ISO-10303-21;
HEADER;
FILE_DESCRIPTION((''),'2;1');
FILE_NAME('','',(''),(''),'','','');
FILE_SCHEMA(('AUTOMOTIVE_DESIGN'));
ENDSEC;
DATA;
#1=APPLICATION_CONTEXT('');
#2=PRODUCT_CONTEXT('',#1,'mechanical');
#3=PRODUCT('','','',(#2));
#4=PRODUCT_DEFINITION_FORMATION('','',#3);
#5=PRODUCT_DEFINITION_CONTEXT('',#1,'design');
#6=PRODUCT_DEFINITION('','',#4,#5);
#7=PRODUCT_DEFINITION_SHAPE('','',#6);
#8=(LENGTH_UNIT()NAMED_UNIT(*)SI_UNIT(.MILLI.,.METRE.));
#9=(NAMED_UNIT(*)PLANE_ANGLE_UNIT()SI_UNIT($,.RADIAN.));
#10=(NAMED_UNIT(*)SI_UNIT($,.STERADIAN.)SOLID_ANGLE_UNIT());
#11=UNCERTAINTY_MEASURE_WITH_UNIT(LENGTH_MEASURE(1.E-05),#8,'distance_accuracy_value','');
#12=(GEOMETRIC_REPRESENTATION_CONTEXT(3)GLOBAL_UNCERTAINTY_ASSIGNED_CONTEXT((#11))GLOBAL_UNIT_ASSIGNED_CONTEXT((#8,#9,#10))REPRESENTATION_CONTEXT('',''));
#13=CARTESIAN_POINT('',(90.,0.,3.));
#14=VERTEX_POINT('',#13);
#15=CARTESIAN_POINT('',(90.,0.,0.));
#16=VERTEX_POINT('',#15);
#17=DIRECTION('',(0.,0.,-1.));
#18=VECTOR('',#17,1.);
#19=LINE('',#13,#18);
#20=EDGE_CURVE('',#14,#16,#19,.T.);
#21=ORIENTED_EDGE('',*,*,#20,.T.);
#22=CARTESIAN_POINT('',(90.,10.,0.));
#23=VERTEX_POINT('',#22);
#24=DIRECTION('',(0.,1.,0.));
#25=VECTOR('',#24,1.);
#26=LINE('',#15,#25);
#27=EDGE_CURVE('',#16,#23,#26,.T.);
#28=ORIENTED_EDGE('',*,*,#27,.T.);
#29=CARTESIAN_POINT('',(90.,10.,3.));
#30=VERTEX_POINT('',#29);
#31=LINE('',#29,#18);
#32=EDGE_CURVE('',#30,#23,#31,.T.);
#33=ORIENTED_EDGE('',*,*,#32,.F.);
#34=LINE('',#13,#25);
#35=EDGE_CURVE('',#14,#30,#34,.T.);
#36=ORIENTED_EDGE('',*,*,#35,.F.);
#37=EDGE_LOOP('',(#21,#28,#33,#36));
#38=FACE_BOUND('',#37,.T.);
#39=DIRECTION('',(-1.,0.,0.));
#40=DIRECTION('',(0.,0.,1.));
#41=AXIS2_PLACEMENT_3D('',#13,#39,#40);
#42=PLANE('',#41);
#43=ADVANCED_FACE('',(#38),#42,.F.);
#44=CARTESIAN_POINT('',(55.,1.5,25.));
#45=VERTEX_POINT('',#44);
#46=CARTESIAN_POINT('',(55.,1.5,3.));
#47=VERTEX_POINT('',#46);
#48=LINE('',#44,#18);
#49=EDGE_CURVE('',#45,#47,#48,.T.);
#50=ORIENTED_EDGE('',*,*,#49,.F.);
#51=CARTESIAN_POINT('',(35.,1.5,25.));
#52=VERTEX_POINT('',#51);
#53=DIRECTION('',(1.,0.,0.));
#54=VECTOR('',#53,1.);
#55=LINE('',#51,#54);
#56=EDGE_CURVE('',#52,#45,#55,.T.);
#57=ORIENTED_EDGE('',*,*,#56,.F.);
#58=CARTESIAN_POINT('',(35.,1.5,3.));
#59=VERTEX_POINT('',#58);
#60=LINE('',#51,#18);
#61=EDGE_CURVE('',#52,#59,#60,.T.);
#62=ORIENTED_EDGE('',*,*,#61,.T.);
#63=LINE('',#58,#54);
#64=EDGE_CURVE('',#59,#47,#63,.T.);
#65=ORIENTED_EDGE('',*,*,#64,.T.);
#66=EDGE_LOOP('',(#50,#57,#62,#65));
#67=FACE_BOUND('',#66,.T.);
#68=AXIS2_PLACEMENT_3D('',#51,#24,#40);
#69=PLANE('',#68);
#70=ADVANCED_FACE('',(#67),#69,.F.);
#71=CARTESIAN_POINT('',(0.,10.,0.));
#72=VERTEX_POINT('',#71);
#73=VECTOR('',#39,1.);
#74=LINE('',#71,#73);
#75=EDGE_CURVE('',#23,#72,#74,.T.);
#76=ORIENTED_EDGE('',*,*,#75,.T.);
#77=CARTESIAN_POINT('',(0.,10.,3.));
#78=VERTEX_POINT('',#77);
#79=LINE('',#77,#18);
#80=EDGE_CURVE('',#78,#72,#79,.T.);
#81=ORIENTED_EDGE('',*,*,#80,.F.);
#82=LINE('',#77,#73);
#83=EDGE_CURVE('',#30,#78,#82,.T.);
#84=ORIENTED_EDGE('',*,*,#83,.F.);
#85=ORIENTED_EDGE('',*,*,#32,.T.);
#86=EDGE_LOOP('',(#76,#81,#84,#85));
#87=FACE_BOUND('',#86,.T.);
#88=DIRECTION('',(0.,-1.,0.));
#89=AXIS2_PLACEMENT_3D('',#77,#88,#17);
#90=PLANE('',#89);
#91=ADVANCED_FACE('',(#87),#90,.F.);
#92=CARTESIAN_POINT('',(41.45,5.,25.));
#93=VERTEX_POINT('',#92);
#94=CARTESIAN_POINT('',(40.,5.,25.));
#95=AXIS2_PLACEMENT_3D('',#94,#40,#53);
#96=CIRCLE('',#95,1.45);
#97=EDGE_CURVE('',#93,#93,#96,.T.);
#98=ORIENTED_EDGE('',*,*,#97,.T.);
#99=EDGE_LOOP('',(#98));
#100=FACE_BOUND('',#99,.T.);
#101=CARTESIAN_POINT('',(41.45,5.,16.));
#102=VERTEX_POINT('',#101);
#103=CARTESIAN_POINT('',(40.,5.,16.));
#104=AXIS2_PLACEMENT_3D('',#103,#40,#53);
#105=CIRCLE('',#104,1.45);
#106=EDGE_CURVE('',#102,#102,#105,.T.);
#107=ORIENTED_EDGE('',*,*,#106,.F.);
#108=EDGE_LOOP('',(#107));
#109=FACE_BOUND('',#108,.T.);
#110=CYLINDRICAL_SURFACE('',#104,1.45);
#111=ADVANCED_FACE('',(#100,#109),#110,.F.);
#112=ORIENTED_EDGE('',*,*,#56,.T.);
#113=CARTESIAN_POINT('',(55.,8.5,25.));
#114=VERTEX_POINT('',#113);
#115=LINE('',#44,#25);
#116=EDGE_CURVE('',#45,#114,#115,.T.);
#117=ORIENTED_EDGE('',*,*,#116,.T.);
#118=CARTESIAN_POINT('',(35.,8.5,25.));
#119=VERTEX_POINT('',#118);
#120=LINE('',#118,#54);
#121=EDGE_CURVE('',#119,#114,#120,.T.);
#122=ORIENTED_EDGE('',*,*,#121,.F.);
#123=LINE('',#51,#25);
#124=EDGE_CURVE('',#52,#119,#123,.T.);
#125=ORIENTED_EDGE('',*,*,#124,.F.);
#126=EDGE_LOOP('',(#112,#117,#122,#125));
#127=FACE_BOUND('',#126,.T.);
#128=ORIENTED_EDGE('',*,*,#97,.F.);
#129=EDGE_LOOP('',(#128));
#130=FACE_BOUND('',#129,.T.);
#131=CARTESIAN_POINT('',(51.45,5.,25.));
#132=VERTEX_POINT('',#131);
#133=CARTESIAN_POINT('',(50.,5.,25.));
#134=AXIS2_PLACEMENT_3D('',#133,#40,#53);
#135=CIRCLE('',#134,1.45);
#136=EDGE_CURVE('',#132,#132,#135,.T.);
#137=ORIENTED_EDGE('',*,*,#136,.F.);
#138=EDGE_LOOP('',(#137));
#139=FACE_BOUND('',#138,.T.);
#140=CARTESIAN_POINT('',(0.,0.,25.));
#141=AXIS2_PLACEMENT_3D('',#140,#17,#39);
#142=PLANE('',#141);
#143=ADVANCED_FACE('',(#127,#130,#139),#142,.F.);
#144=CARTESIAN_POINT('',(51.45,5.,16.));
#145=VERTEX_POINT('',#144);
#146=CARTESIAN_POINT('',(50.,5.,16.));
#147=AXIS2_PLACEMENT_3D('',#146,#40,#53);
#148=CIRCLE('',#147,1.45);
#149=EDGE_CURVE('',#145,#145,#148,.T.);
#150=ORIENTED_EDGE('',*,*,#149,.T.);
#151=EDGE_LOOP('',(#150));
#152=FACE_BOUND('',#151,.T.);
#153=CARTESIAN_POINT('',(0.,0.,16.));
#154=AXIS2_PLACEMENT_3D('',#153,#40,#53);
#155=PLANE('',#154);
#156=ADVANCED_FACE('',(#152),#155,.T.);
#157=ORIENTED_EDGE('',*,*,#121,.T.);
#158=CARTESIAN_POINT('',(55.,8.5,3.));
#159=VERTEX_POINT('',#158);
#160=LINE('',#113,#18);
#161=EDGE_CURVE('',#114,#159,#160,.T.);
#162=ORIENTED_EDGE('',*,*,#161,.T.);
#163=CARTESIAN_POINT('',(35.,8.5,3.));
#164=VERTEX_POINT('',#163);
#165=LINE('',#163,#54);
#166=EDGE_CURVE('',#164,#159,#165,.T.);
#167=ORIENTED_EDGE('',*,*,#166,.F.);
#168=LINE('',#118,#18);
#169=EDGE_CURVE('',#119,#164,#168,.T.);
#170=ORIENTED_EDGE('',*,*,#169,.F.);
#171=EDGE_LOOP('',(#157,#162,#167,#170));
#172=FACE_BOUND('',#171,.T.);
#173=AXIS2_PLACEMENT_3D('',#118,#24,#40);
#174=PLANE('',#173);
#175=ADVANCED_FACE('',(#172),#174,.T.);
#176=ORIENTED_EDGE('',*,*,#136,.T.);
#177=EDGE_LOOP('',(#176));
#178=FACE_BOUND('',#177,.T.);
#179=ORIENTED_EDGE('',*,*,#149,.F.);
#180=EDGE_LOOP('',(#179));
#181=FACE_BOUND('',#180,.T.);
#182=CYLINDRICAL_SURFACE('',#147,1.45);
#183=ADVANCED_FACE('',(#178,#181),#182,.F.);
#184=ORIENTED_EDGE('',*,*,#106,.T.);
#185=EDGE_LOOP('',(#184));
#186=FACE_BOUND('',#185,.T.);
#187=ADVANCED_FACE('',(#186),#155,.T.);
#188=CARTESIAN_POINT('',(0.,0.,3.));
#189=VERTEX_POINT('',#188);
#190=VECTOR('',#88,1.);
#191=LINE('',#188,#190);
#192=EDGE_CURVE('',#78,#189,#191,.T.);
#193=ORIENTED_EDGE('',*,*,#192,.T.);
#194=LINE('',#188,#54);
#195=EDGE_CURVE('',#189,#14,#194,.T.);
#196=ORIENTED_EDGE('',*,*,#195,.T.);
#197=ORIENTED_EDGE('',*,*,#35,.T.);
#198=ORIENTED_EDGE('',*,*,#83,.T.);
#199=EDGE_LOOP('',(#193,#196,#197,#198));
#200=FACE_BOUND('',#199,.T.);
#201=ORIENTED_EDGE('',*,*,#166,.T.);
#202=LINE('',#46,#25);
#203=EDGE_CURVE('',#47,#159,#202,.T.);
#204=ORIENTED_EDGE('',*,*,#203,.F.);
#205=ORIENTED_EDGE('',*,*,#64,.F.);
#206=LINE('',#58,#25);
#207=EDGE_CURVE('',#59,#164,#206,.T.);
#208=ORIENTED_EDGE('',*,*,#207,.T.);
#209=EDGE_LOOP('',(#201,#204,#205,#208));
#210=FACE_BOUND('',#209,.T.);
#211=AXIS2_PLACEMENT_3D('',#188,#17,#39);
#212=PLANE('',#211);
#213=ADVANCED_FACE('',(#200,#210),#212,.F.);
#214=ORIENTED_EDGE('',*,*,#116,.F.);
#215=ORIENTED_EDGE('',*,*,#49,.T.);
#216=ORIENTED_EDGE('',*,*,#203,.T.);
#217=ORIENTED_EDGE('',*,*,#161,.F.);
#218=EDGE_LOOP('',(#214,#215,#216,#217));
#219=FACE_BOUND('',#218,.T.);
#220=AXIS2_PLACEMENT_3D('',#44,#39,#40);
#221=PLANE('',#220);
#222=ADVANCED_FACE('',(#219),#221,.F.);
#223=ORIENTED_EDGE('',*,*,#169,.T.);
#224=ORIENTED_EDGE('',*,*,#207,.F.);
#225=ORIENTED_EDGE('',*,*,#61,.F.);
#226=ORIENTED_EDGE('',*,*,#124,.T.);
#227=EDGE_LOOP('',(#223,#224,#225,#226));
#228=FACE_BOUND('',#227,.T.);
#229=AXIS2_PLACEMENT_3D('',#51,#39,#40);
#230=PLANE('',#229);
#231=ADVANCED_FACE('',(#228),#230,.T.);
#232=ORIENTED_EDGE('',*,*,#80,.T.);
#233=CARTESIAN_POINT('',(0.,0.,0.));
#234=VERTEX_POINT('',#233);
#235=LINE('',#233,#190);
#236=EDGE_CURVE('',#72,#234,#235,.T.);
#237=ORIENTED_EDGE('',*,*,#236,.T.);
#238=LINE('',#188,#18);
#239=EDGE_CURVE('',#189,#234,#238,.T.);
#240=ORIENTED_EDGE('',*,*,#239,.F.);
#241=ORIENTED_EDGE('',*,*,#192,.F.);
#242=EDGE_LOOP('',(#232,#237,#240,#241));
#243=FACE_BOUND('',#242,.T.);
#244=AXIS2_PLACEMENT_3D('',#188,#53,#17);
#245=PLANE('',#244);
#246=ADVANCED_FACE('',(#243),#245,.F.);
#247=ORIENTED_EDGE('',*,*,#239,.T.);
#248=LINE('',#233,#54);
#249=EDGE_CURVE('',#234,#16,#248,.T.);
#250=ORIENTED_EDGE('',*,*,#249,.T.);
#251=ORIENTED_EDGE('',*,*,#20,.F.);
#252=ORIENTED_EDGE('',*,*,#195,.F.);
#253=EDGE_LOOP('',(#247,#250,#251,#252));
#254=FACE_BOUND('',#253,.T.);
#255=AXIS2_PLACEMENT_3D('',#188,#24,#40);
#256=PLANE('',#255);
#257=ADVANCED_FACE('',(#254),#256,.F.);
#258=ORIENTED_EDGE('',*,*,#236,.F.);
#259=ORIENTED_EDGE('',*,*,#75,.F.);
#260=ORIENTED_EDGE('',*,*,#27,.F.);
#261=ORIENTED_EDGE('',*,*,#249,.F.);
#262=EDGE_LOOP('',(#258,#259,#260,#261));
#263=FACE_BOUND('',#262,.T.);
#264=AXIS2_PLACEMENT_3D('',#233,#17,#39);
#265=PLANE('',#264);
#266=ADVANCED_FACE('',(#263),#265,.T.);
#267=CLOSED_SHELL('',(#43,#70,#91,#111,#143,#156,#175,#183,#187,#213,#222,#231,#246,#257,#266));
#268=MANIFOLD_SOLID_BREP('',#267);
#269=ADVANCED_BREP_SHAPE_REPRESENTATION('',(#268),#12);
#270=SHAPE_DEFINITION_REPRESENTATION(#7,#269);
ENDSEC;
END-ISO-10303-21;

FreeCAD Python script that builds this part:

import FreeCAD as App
import Part
import Sketcher


def add_polygon(sketch, points):
    """Adds a closed chain of lines whose ends are joined by coincident constraints."""
    first, n = sketch.GeometryCount, len(points)
    for a, b in zip(points, points[1:] + points[:1]):
        sketch.addGeometry(Part.LineSegment(App.Vector(*a, 0), App.Vector(*b, 0)), False)
    for i in range(n):
        sketch.addConstraint(Sketcher.Constraint("Coincident", first + i, 2, first + (i + 1) % n, 1))

doc = App.newDocument("Part")
body = doc.addObject("PartDesign::Body", "Body")

sketch1 = doc.addObject("Sketcher::SketchObject", "Sketch")
body.addObject(sketch1)
sketch1.AttachmentSupport = (doc.XY_Plane, [""])
sketch1.MapMode = "FlatFace"
add_polygon(sketch1, [(0, 10), (0, 0), (90, 0), (90, 10)])
sketch1.addConstraint([
    Sketcher.Constraint("Vertical", 0),
    Sketcher.Constraint("Horizontal", 1),
    Sketcher.Constraint("Vertical", 2),
    Sketcher.Constraint("Horizontal", 3),
    Sketcher.Constraint("Coincident", 0, 2, -1, 1),
    Sketcher.Constraint("DistanceX", 1, 1, 1, 2, 90.0),
    Sketcher.Constraint("DistanceY", 0, 2, 0, 1, 10.0),
])
pad1 = doc.addObject("PartDesign::Pad", "Pad")
body.addObject(pad1)
pad1.Profile = sketch1
pad1.Length = 3

sketch2 = doc.addObject("Sketcher::SketchObject", "Sketch001")
body.addObject(sketch2)
sketch2.AttachmentSupport = (doc.XY_Plane, [""])
sketch2.MapMode = "FlatFace"
sketch2.AttachmentOffset = App.Placement(App.Vector(0, 0, 3), App.Rotation())
add_polygon(sketch2, [(35, 8), (35, 2), (55, 2), (55, 8)])
sketch2.addConstraint([
    Sketcher.Constraint("Vertical", 0),
    Sketcher.Constraint("Horizontal", 1),
    Sketcher.Constraint("Vertical", 2),
    Sketcher.Constraint("Horizontal", 3),
    Sketcher.Constraint("DistanceX", 1, 1, 1, 2, 20.0),
    Sketcher.Constraint("DistanceY", 0, 2, 0, 1, 7.0),
    Sketcher.Constraint("DistanceX", -1, 1, 0, 2, 35.0),
    Sketcher.Constraint("DistanceY", -1, 1, 0, 2, 1.5),
])
pad2 = doc.addObject("PartDesign::Pad", "Pad001")
body.addObject(pad2)
pad2.Profile = sketch2
pad2.Length = 22

sketch3 = doc.addObject("Sketcher::SketchObject", "Sketch002")
body.addObject(sketch3)
sketch3.AttachmentSupport = (doc.XY_Plane, [""])
sketch3.MapMode = "FlatFace"
sketch3.AttachmentOffset = App.Placement(App.Vector(0, 0, 25), App.Rotation())
sketch3.addGeometry([
    Part.Circle(App.Vector(50, 5, 0), App.Vector(0, 0, 1), 1.4),
    Part.Circle(App.Vector(40, 5, 0), App.Vector(0, 0, 1), 1.4),
], False)
sketch3.addConstraint([
    Sketcher.Constraint("Equal", 0, 1),
    Sketcher.Constraint("Horizontal", 0, 3, 1, 3),
    Sketcher.Constraint("Diameter", 0, 2.9),
    Sketcher.Constraint("DistanceX", -1, 1, 0, 3, 50.0),
    Sketcher.Constraint("DistanceY", -1, 1, 0, 3, 5.0),
    Sketcher.Constraint("DistanceX", -1, 1, 1, 3, 40.0),
])
pocket1 = doc.addObject("PartDesign::Pocket", "Pocket")
body.addObject(pocket1)
pocket1.Profile = sketch3
pocket1.Length = 9

doc.recompute()
